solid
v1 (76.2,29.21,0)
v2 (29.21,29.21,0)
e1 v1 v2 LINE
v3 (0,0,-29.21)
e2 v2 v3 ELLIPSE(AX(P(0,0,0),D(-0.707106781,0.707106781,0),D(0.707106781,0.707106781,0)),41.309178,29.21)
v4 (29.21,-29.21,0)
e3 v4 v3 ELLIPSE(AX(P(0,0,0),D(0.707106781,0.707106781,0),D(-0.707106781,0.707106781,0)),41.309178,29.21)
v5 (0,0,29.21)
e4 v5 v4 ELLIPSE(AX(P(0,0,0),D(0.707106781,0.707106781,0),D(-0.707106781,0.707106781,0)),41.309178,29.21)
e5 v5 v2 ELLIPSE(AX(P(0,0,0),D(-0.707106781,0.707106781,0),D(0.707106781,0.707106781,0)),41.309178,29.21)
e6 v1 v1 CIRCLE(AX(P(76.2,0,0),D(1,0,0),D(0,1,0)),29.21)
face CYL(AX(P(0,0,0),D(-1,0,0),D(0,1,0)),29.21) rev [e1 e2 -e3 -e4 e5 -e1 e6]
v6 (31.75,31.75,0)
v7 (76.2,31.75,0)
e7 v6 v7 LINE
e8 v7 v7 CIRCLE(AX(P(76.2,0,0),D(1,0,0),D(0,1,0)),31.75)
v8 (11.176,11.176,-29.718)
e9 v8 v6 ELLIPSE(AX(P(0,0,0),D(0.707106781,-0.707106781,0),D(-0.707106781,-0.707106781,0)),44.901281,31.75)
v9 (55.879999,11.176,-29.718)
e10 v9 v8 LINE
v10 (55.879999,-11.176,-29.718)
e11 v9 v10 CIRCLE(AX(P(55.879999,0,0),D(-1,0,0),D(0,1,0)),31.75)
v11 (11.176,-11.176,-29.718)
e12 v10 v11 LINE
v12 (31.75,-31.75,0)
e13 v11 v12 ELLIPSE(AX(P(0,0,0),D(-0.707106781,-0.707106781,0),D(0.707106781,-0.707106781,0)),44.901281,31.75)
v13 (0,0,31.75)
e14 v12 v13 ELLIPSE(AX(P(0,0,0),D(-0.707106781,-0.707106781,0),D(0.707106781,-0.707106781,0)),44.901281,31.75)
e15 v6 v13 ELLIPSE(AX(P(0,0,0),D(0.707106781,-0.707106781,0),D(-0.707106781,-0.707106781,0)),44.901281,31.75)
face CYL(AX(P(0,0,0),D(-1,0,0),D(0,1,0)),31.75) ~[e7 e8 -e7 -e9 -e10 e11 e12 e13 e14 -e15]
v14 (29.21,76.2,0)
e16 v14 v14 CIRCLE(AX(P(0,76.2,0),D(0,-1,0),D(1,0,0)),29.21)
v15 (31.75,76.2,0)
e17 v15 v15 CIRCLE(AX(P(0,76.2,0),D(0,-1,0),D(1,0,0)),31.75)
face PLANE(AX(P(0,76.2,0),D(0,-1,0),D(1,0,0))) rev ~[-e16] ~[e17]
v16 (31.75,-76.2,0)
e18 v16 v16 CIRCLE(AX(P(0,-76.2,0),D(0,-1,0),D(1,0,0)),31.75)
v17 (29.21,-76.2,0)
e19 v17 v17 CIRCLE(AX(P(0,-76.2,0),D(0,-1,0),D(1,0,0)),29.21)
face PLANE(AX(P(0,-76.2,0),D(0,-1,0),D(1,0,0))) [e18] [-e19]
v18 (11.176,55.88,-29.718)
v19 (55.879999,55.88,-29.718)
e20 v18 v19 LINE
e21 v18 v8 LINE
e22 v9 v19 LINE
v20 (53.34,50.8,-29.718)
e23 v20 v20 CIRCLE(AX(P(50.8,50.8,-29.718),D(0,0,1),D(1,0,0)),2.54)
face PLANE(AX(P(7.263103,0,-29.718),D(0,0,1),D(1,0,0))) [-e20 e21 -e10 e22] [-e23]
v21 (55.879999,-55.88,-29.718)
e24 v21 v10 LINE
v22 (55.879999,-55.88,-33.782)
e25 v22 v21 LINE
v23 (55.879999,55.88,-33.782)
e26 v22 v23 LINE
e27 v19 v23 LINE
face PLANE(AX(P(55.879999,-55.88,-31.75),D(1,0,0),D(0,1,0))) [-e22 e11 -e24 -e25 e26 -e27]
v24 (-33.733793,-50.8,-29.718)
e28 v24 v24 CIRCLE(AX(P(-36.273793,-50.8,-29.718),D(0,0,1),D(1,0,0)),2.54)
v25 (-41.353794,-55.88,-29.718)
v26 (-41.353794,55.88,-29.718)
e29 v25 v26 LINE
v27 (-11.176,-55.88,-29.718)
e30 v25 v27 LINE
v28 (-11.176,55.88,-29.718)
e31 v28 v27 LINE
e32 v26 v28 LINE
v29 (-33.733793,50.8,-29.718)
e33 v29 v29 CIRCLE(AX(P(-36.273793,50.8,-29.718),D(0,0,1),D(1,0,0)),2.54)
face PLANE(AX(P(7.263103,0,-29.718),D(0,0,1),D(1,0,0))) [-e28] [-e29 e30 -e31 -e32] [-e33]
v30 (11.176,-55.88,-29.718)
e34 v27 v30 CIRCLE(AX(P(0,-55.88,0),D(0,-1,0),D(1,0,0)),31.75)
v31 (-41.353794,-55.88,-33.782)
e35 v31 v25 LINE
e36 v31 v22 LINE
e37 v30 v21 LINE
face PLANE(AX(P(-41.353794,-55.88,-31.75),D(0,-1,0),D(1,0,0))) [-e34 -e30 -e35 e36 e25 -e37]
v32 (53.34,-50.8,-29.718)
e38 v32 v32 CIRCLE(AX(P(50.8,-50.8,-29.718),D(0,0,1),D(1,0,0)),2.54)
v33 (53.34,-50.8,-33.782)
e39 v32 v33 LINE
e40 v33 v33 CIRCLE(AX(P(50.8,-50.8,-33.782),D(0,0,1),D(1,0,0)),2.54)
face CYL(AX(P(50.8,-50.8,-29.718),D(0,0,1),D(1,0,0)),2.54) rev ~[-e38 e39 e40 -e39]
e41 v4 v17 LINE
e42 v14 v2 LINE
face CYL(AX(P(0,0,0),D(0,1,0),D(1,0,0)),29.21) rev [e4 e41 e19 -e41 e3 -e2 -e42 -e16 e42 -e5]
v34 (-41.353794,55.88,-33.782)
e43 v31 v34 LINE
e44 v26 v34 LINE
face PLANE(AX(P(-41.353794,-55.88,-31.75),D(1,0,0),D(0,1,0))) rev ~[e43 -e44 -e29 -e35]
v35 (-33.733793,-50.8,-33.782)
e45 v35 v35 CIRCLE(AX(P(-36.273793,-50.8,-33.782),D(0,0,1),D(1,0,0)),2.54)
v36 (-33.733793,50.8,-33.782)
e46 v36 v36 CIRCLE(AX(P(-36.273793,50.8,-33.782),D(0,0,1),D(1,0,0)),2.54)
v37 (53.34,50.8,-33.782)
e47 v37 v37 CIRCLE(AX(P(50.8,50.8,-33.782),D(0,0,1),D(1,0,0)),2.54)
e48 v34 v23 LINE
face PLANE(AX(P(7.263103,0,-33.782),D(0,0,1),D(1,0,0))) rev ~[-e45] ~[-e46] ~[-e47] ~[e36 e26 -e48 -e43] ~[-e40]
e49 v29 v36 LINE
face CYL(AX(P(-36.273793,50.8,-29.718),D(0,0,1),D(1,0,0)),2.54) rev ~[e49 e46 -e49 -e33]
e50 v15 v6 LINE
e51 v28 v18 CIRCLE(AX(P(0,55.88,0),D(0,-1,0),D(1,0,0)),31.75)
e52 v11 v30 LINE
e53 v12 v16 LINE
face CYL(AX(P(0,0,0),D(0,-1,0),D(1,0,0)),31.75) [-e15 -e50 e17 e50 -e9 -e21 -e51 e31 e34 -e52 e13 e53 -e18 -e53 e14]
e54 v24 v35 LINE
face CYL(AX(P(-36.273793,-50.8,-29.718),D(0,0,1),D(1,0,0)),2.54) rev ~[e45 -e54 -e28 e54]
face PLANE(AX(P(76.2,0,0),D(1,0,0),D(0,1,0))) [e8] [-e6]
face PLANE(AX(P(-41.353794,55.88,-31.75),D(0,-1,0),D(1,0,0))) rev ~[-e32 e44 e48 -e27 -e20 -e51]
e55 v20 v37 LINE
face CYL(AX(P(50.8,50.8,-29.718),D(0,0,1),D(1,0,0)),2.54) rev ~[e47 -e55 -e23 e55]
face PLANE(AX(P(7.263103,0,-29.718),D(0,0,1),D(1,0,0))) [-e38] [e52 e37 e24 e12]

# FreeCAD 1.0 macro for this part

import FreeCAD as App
import Part
import Sketcher

V = App.Vector
Q = App.Units.Quantity


def add_polygon(sketch, points):
    """Adds a closed chain of lines whose ends are joined by coincident constraints."""
    first, n = sketch.GeometryCount, len(points)
    for a, b in zip(points, points[1:] + points[:1]):
        sketch.addGeometry(Part.LineSegment(App.Vector(*a, 0), App.Vector(*b, 0)), False)
    for i in range(n):
        sketch.addConstraint(Sketcher.Constraint("Coincident", first + i, 2, first + (i + 1) % n, 1))

doc = App.newDocument("Part")
body = doc.addObject("PartDesign::Body", "Body")

sketch1 = body.newObject("Sketcher::SketchObject", "Sketch")
sketch1.AttachmentSupport = (doc.getObject("XZ_Plane"), [""])
sketch1.MapMode = "FlatFace"
sketch1.addGeometry([
    Part.Circle(V(0, 0, 0), V(0, 0, 1), 32),
    Part.Circle(V(0, 0, 0), V(0, 0, 1), 29),
], False)
sketch1.addConstraint([
    Sketcher.Constraint("Coincident", 0, 3, -1, 1),
    Sketcher.Constraint("Coincident", 1, 3, -1, 1),
    Sketcher.Constraint("Diameter", 0, Q("2.5 in")),
    Sketcher.Constraint("Diameter", 1, Q("2.3 in")),
])
pad1 = body.newObject("PartDesign::Pad", "Pad")
pad1.Profile = sketch1
pad1.Length = Q("6 in")
pad1.Midplane = True

sketch2 = body.newObject("Sketcher::SketchObject", "Sketch001")
sketch2.AttachmentSupport = (doc.getObject("YZ_Plane"), [""])
sketch2.MapMode = "FlatFace"
sketch2.addGeometry([
    Part.Circle(V(0, 0, 0), V(0, 0, 1), 32),
    Part.Circle(V(0, 0, 0), V(0, 0, 1), 29),
], False)
sketch2.addConstraint([
    Sketcher.Constraint("Coincident", 0, 3, -1, 1),
    Sketcher.Constraint("Coincident", 1, 3, -1, 1),
    Sketcher.Constraint("Diameter", 0, Q("2.5 in")),
    Sketcher.Constraint("Diameter", 1, Q("2.3 in")),
])
pad2 = body.newObject("PartDesign::Pad", "Pad001")
pad2.Profile = sketch2
pad2.Length = Q("3 in")

sketch3 = body.newObject("Sketcher::SketchObject", "Sketch002")
sketch3.AttachmentSupport = (doc.getObject("XZ_Plane"), [""])
sketch3.MapMode = "FlatFace"
sketch3.addGeometry(Part.Circle(V(0, 0, 0), V(0, 0, 1), 29), False)
sketch3.addConstraint([
    Sketcher.Constraint("Coincident", 0, 3, -1, 1),
    Sketcher.Constraint("Diameter", 0, Q("2.3 in")),
])
pocket1 = body.newObject("PartDesign::Pocket", "Pocket")
pocket1.Profile = sketch3
pocket1.Length = Q("4.16 in")
pocket1.Midplane = True

sketch4 = body.newObject("Sketcher::SketchObject", "Sketch003")
sketch4.AttachmentSupport = (doc.getObject("YZ_Plane"), [""])
sketch4.MapMode = "FlatFace"
sketch4.addGeometry(Part.Circle(V(0, 0, 0), V(0, 0, 1), 29), False)
sketch4.addConstraint([
    Sketcher.Constraint("Coincident", 0, 3, -1, 1),
    Sketcher.Constraint("Diameter", 0, Q("2.3 in")),
])
pocket2 = body.newObject("PartDesign::Pocket", "Pocket001")
pocket2.Profile = sketch4
pocket2.Length = Q("1.75 in")
pocket2.Reversed = True

sketch5 = body.newObject("Sketcher::SketchObject", "Sketch004")
sketch5.AttachmentSupport = (doc.getObject("XY_Plane"), [""])
sketch5.MapMode = "FlatFace"
sketch5.AttachmentOffset = App.Placement(V(0, 0, -1.25 * 25.4), App.Rotation())
add_polygon(sketch5, [(-41, 56), (-41, -56), (56, -56), (56, 56)])
sketch5.addConstraint([
    Sketcher.Constraint("Vertical", 0),
    Sketcher.Constraint("Horizontal", 1),
    Sketcher.Constraint("Vertical", 2),
    Sketcher.Constraint("Horizontal", 3),
    Sketcher.Constraint("DistanceY", 0, 2, 0, 1, Q("4.4 in")),
    Sketcher.Constraint("DistanceY", 0, 2, -1, 1, Q("2.2 in")),
    Sketcher.Constraint("DistanceX", -1, 1, 1, 2, Q("2.2 in")),
    Sketcher.Constraint("DistanceX", 1, 1, 1, 2, 97.233793),
])
pad3 = body.newObject("PartDesign::Pad", "Pad002")
pad3.Profile = sketch5
pad3.Length = Q("0.16 in")
pad3.Midplane = True

sketch6 = body.newObject("Sketcher::SketchObject", "Sketch005")
sketch6.AttachmentSupport = (doc.getObject("XY_Plane"), [""])
sketch6.MapMode = "FlatFace"
sketch6.AttachmentOffset = App.Placement(V(0, 0, -1.17 * 25.4), App.Rotation())
sketch6.addGeometry([
    Part.Circle(V(-36.3, 50.8, 0), V(0, 0, 1), 2.5),
    Part.Circle(V(50.8, 50.8, 0), V(0, 0, 1), 2.5),
    Part.Circle(V(50.8, -50.8, 0), V(0, 0, 1), 2.5),
    Part.Circle(V(-36.3, -50.8, 0), V(0, 0, 1), 2.5),
], False)
sketch6.addConstraint([
    Sketcher.Constraint("Equal", 0, 1),
    Sketcher.Constraint("Equal", 1, 2),
    Sketcher.Constraint("Equal", 2, 3),
    Sketcher.Constraint("Symmetric", 1, 3, 2, 3, -1),
    Sketcher.Constraint("Symmetric", 0, 3, 3, 3, -1),
    Sketcher.Constraint("Horizontal", 0, 3, 1, 3),
    Sketcher.Constraint("Diameter", 0, Q("0.2 in")),
    Sketcher.Constraint("DistanceY", -1, 1, 0, 3, Q("2 in")),
    Sketcher.Constraint("DistanceX", -1, 1, 1, 3, Q("2 in")),
    Sketcher.Constraint("DistanceX", 0, 3, -1, 1, 36.273793),
])
pocket3 = body.newObject("PartDesign::Pocket", "Pocket002")
pocket3.Profile = sketch6
pocket3.Length = Q("1 in")

doc.recompute()
